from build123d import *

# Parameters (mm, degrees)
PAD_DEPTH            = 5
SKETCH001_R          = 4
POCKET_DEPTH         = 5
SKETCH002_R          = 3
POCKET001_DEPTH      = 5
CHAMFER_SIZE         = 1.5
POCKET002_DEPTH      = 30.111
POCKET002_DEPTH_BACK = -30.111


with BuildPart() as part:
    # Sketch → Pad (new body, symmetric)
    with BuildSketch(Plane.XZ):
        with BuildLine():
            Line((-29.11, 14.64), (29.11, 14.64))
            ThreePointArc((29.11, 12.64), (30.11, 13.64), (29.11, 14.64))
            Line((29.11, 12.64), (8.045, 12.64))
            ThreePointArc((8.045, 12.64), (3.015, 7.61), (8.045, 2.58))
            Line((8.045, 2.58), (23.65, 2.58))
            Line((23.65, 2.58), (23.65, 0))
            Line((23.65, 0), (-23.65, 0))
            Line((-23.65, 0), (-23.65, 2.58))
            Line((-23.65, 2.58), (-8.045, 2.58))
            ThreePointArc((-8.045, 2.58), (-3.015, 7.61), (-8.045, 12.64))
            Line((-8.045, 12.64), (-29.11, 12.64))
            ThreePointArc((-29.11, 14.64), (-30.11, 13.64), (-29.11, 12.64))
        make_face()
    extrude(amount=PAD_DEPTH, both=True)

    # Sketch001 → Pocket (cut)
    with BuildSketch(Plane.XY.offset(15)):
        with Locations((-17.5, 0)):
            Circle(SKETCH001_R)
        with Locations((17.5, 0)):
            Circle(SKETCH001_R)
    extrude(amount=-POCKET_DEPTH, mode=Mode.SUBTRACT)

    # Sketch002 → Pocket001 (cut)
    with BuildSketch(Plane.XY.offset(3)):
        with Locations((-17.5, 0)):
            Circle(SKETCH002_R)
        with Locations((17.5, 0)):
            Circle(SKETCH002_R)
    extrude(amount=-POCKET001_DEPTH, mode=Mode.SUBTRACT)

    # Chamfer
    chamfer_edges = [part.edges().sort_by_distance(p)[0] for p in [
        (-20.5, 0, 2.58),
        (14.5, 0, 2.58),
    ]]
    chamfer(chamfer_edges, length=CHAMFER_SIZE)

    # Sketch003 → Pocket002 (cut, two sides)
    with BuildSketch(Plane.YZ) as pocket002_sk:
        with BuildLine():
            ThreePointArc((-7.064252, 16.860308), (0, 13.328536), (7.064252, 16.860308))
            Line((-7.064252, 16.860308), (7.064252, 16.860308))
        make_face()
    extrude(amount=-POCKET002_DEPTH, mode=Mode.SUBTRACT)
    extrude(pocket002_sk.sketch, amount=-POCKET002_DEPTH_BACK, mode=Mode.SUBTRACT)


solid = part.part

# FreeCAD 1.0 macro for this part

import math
import FreeCAD as App
import Part
import Sketcher
Q = App.Units.Quantity


def edges_at(feature, points):
    """Names of the edges that pass closest to the given points."""
    edges = feature.Shape.Edges
    near = lambda p: min(range(len(edges)), key=lambda i: edges[i].distToShape(Part.Vertex(*p))[0])
    return sorted({f"Edge{near(p) + 1}" for p in points})

doc = App.newDocument("Part")
body = doc.addObject("PartDesign::Body", "Body")

# Sketch on XZ plane
sketch1 = body.newObject("Sketcher::SketchObject", "Sketch")
sketch1.AttachmentSupport = (doc.getObject("XZ_Plane"), [""])
sketch1.MapMode = "FlatFace"
sketch1.addGeometry(Part.LineSegment(App.Vector(29.11, 14.64, 0), App.Vector(-29.11, 14.64, 0)), False)
sketch1.addGeometry(Part.ArcOfCircle(Part.Circle(App.Vector(-29.11, 13.64, 0), App.Vector(0, 0, 1), 1), math.radians(90), math.radians(270)), False)
sketch1.addGeometry(Part.LineSegment(App.Vector(-29.11, 12.64, 0), App.Vector(-8.045, 12.64, 0)), False)
sketch1.addGeometry(Part.ArcOfCircle(Part.Circle(App.Vector(-8.045, 7.61, 0), App.Vector(0, 0, 1), 5.03), math.radians(-90), math.radians(90)), False)
sketch1.addGeometry(Part.LineSegment(App.Vector(-8.045, 2.58, 0), App.Vector(-23.65, 2.58, 0)), False)
sketch1.addGeometry(Part.LineSegment(App.Vector(-23.65, 2.58, 0), App.Vector(-23.65, 0, 0)), False)
sketch1.addGeometry(Part.LineSegment(App.Vector(-23.65, 0, 0), App.Vector(23.65, 0, 0)), False)
sketch1.addGeometry(Part.LineSegment(App.Vector(23.65, 0, 0), App.Vector(23.65, 2.58, 0)), False)
sketch1.addGeometry(Part.LineSegment(App.Vector(23.65, 2.58, 0), App.Vector(8.045, 2.58, 0)), False)
sketch1.addGeometry(Part.ArcOfCircle(Part.Circle(App.Vector(8.045, 7.61, 0), App.Vector(0, 0, 1), 5.03), math.radians(90), math.radians(270)), False)
sketch1.addGeometry(Part.LineSegment(App.Vector(8.045, 12.64, 0), App.Vector(29.11, 12.64, 0)), False)
sketch1.addGeometry(Part.ArcOfCircle(Part.Circle(App.Vector(29.11, 13.64, 0), App.Vector(0, 0, 1), 1), math.radians(-90), math.radians(90)), False)
sketch1.addConstraint(Sketcher.Constraint("Tangent", 0, 2, 1, 1))
sketch1.addConstraint(Sketcher.Constraint("Tangent", 1, 2, 2, 1))
sketch1.addConstraint(Sketcher.Constraint("Tangent", 2, 2, 3, 2))
sketch1.addConstraint(Sketcher.Constraint("Tangent", 3, 1, 4, 1))
sketch1.addConstraint(Sketcher.Constraint("Coincident", 4, 2, 5, 1))
sketch1.addConstraint(Sketcher.Constraint("Coincident", 5, 2, 6, 1))
sketch1.addConstraint(Sketcher.Constraint("Coincident", 6, 2, 7, 1))
sketch1.addConstraint(Sketcher.Constraint("Coincident", 7, 2, 8, 1))
sketch1.addConstraint(Sketcher.Constraint("Tangent", 8, 2, 9, 2))
sketch1.addConstraint(Sketcher.Constraint("Tangent", 9, 1, 10, 1))
sketch1.addConstraint(Sketcher.Constraint("Tangent", 10, 2, 11, 1))
sketch1.addConstraint(Sketcher.Constraint("Tangent", 11, 2, 0, 1))
sketch1.addConstraint(Sketcher.Constraint("Horizontal", 0))
sketch1.addConstraint(Sketcher.Constraint("Horizontal", 2))
sketch1.addConstraint(Sketcher.Constraint("Horizontal", 4))
sketch1.addConstraint(Sketcher.Constraint("Vertical", 5))
sketch1.addConstraint(Sketcher.Constraint("Horizontal", 6))
sketch1.addConstraint(Sketcher.Constraint("Vertical", 7))
sketch1.addConstraint(Sketcher.Constraint("Horizontal", 8))
sketch1.addConstraint(Sketcher.Constraint("Horizontal", 10))
sketch1.addConstraint(Sketcher.Constraint("Equal", 3, 9))
sketch1.addConstraint(Sketcher.Constraint("Equal", 1, 11))
sketch1.addConstraint(Sketcher.Constraint("Symmetric", 5, 2, 6, 2, -1, 1))
sketch1.addConstraint(Sketcher.Constraint("Equal", 4, 8))
sketch1.addConstraint(Sketcher.Constraint("Equal", 2, 10))
sketch1.addConstraint(Sketcher.Constraint("Radius", 1, Q("1 mm")))
sketch1.addConstraint(Sketcher.Constraint("Radius", 3, Q("5.03 mm")))
sketch1.addConstraint(Sketcher.Constraint("DistanceX", 6, 1, 6, 2, Q("47.3 mm")))
sketch1.addConstraint(Sketcher.Constraint("DistanceX", 0, 2, 0, 1, Q("58.22 mm")))
sketch1.addConstraint(Sketcher.Constraint("DistanceY", 5, 2, 5, 1, Q("2.58 mm")))
sketch1.addConstraint(Sketcher.Constraint("DistanceX", 2, 1, 2, 2, Q("21.065 mm")))
pad1 = body.newObject("PartDesign::Pad", "Pad")
pad1.Profile = sketch1
pad1.Length = 10
pad1.Midplane = True

# Sketch on XY plane
sketch2 = body.newObject("Sketcher::SketchObject", "Sketch001")
sketch2.AttachmentSupport = (doc.getObject("XY_Plane"), [""])
sketch2.MapMode = "FlatFace"
sketch2.AttachmentOffset = App.Placement(App.Vector(0, 0, 15), App.Rotation())
sketch2.addGeometry(Part.Circle(App.Vector(-17.5, 0, 0), App.Vector(0, 0, 1), 4), False)
sketch2.addGeometry(Part.Circle(App.Vector(17.5, 0, 0), App.Vector(0, 0, 1), 4), False)
sketch2.addConstraint(Sketcher.Constraint("Equal", 0, 1))
sketch2.addConstraint(Sketcher.Constraint("Symmetric", 0, 3, 1, 3, -1, 1))
sketch2.addConstraint(Sketcher.Constraint("PointOnObject", 0, 3, -1))
sketch2.addConstraint(Sketcher.Constraint("Diameter", 0, Q("8 mm")))
sketch2.addConstraint(Sketcher.Constraint("DistanceX", 0, 3, 1, 3, Q("35 mm")))
pocket1 = body.newObject("PartDesign::Pocket", "Pocket")
pocket1.Profile = sketch2
pocket1.Length = 5

# Sketch on XY plane
sketch3 = body.newObject("Sketcher::SketchObject", "Sketch002")
sketch3.AttachmentSupport = (doc.getObject("XY_Plane"), [""])
sketch3.MapMode = "FlatFace"
sketch3.AttachmentOffset = App.Placement(App.Vector(0, 0, 3), App.Rotation())
sketch3.addGeometry(Part.Circle(App.Vector(-17.5, 0, 0), App.Vector(0, 0, 1), 3), False)
sketch3.addGeometry(Part.Circle(App.Vector(17.5, 0, 0), App.Vector(0, 0, 1), 3), False)
sketch3.addConstraint(Sketcher.Constraint("Equal", 0, 1))
sketch3.addConstraint(Sketcher.Constraint("Symmetric", 0, 3, 1, 3, -1, 1))
sketch3.addConstraint(Sketcher.Constraint("PointOnObject", 0, 3, -1))
sketch3.addConstraint(Sketcher.Constraint("Diameter", 0, Q("6 mm")))
sketch3.addConstraint(Sketcher.Constraint("DistanceX", 0, 3, 1, 3, Q("35 mm")))
pocket2 = body.newObject("PartDesign::Pocket", "Pocket001")
pocket2.Profile = sketch3
pocket2.Length = 5
doc.recompute()

chamfer = body.newObject("PartDesign::Chamfer", "Chamfer")
chamfer.Base = (pocket2, edges_at(pocket2, [(-20.5, 0, 2.58), (14.5, 0, 2.58)]))
chamfer.Size = 1.5

# Sketch on YZ plane
sketch4 = body.newObject("Sketcher::SketchObject", "Sketch003")
sketch4.AttachmentSupport = (doc.getObject("YZ_Plane"), [""])
sketch4.MapMode = "FlatFace"
sketch4.addGeometry(Part.ArcOfCircle(Part.Circle(App.Vector(0, 22.159382, 0), App.Vector(0, 0, 1), 8.830846), math.radians(-143.125508), math.radians(-36.874492)), False)
sketch4.addGeometry(Part.LineSegment(App.Vector(7.064252, 16.860308, 0), App.Vector(-7.064252, 16.860308, 0)), False)
sketch4.addConstraint(Sketcher.Constraint("Coincident", 0, 1, 1, 2))
sketch4.addConstraint(Sketcher.Constraint("Coincident", 1, 1, 0, 2))
sketch4.addConstraint(Sketcher.Constraint("Horizontal", 1))
sketch4.addConstraint(Sketcher.Constraint("PointOnObject", 0, 3, -2))
sketch4.addConstraint(Sketcher.Constraint("Radius", 0, Q("8.830846 mm")))
sketch4.addConstraint(Sketcher.Constraint("DistanceX", 1, 2, 1, 1, Q("14.128504 mm")))
sketch4.addConstraint(Sketcher.Constraint("DistanceY", -1, 1, 1, 1, Q("16.860308 mm")))
pocket3 = body.newObject("PartDesign::Pocket", "Pocket002")
pocket3.Profile = sketch4
pocket3.Type = "ThroughAll"
pocket3.Midplane = True

doc.recompute()
